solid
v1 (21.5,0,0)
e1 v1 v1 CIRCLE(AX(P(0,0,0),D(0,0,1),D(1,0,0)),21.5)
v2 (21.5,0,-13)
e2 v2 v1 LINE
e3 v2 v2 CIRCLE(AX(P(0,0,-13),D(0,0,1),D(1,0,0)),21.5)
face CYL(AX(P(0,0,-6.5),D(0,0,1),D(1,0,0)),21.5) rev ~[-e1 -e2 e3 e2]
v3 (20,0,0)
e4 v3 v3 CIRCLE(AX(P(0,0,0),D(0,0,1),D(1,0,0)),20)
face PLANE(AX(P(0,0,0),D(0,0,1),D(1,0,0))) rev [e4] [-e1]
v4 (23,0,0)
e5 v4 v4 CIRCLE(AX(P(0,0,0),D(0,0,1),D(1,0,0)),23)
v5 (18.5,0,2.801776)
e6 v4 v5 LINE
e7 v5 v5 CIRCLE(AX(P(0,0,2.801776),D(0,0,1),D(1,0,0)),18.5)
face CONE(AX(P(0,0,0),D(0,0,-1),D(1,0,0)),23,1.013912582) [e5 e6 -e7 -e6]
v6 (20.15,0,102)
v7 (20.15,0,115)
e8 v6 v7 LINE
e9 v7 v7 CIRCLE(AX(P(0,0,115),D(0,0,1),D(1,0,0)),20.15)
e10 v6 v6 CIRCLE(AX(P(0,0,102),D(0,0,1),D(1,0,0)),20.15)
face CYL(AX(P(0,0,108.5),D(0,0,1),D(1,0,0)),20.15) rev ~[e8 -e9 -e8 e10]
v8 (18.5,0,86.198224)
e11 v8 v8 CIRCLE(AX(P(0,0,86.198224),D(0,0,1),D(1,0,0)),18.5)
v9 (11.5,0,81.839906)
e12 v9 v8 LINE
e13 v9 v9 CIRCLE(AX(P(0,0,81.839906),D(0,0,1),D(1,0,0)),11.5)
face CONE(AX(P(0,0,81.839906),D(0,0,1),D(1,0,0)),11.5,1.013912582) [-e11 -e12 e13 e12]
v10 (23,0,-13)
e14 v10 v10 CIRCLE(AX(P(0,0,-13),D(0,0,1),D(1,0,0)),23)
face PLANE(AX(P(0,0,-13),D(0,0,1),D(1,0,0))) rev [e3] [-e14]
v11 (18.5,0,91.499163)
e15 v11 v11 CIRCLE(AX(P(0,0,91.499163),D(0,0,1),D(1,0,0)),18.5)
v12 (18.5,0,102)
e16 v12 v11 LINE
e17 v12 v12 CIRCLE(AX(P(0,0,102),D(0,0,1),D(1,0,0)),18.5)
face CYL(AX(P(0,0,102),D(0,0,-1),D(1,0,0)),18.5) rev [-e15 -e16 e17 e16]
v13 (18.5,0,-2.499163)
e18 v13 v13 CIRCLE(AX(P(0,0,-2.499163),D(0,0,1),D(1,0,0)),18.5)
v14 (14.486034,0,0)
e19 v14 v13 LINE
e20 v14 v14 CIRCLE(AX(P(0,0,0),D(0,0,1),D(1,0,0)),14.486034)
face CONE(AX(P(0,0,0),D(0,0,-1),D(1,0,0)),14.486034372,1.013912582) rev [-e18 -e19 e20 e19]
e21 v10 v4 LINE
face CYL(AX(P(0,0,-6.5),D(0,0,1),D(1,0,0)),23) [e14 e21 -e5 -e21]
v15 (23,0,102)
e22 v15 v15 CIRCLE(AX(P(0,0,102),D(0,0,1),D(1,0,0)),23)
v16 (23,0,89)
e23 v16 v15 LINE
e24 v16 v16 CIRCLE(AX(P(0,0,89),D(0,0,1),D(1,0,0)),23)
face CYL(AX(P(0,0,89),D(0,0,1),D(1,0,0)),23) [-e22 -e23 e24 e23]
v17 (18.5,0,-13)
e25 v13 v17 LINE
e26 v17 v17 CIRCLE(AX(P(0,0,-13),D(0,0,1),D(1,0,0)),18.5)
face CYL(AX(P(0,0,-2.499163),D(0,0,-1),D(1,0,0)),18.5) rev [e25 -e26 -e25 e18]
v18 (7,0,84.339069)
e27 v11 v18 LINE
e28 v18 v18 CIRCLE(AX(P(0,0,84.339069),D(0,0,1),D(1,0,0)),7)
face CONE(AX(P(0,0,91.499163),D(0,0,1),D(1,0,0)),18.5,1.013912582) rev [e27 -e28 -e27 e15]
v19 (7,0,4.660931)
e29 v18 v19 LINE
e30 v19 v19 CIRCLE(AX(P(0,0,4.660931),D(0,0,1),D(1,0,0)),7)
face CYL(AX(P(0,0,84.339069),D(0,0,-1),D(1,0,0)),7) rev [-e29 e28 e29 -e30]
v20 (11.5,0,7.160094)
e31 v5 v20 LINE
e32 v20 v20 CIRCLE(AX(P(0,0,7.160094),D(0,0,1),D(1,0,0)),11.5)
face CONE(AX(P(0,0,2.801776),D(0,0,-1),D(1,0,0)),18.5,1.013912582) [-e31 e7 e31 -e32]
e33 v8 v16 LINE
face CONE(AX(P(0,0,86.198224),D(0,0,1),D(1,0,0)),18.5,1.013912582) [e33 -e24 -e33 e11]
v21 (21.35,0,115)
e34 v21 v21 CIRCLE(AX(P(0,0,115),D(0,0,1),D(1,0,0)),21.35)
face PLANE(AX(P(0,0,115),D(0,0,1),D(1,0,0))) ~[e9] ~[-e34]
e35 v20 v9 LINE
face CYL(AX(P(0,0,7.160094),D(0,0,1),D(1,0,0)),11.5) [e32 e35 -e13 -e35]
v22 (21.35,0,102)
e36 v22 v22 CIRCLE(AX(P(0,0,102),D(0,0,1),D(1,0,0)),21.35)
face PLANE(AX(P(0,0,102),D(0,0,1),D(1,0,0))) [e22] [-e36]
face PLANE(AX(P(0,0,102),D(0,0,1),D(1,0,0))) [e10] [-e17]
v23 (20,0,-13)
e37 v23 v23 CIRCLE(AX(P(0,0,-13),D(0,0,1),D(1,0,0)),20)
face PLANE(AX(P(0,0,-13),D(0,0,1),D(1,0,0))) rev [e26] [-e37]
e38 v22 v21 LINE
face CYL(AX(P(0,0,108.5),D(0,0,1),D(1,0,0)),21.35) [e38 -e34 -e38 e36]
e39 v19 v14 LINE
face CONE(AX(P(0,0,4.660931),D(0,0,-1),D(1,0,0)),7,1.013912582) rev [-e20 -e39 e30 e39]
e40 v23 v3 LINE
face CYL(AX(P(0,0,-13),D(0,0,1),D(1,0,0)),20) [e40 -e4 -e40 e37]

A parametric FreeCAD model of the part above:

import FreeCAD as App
import Part
import Sketcher

V = App.Vector

doc = App.newDocument("Part")
params = doc.addObject("Spreadsheet::Sheet", "Params")
for row, (alias, value) in enumerate([
    ("sketch1_height", "13 mm"),
    ("sketch1_width", "1.5 mm"),
    ("sketch1_width2", "1.2 mm"),
    ("revolution_angle", "360 deg"),
], start=1):
    params.set(f"A{row}", alias)
    params.set(f"B{row}", "=" + value)
    params.setAlias(f"B{row}", alias)

body = doc.addObject("PartDesign::Body", "Body")

# Sketch on XZ plane
sketch1 = body.newObject("Sketcher::SketchObject", "Sketch")
sketch1.AttachmentSupport = (doc.getObject("XZ_Plane"), [""])
sketch1.MapMode = "FlatFace"
sketch1.addGeometry([
    Part.LineSegment(V(21.5, 0, 0), V(21.5, -13, 0)),  # 0
    Part.LineSegment(V(21.5, -13, 0), V(23, -13, 0)),  # 1
    Part.LineSegment(V(23, -13, 0), V(23, 0, 0)),  # 2
    Part.LineSegment(V(23, 0, 0), V(18.5, 2.801776, 0)),  # 3
    Part.LineSegment(V(18.5, 2.801776, 0), V(11.5, 7.160094, 0)),  # 4
    Part.LineSegment(V(11.5, 7.160094, 0), V(11.5, 81.839906, 0)),  # 5
    Part.LineSegment(V(11.5, 81.839906, 0), V(18.5, 86.198224, 0)),  # 6
    Part.LineSegment(V(18.5, 86.198224, 0), V(23, 89, 0)),  # 7
    Part.LineSegment(V(23, 89, 0), V(23, 102, 0)),  # 8
    Part.LineSegment(V(23, 102, 0), V(21.35, 102, 0)),  # 9
    Part.LineSegment(V(21.35, 102, 0), V(21.35, 115, 0)),  # 10
    Part.LineSegment(V(21.35, 115, 0), V(20.15, 115, 0)),  # 11
    Part.LineSegment(V(20.15, 115, 0), V(20.15, 102, 0)),  # 12
    Part.LineSegment(V(20.15, 102, 0), V(18.5, 102, 0)),  # 13
    Part.LineSegment(V(18.5, 102, 0), V(18.5, 91.499163, 0)),  # 14
    Part.LineSegment(V(18.5, 91.499163, 0), V(7, 84.339069, 0)),  # 15
    Part.LineSegment(V(7, 84.339069, 0), V(7, 4.660931, 0)),  # 16
    Part.LineSegment(V(7, 4.660931, 0), V(14.486034, 0, 0)),  # 17
    Part.LineSegment(V(14.486034, 0, 0), V(18.5, -2.499163, 0)),  # 18
    Part.LineSegment(V(18.5, -2.499163, 0), V(18.5, -13, 0)),  # 19
    Part.LineSegment(V(18.5, -13, 0), V(20, -13, 0)),  # 20
    Part.LineSegment(V(20, -13, 0), V(20, 0, 0)),  # 21
    Part.LineSegment(V(20, 0, 0), V(21.5, 0, 0)),  # 22
], False)
sketch1.addConstraint([
    Sketcher.Constraint("Coincident", 0, 2, 1, 1),
    Sketcher.Constraint("Coincident", 1, 2, 2, 1),
    Sketcher.Constraint("Coincident", 2, 2, 3, 1),
    Sketcher.Constraint("Coincident", 3, 2, 4, 1),
    Sketcher.Constraint("Coincident", 4, 2, 5, 1),
    Sketcher.Constraint("Coincident", 5, 2, 6, 1),
    Sketcher.Constraint("Coincident", 6, 2, 7, 1),
    Sketcher.Constraint("Coincident", 7, 2, 8, 1),
    Sketcher.Constraint("Coincident", 8, 2, 9, 1),
    Sketcher.Constraint("Coincident", 9, 2, 10, 1),
    Sketcher.Constraint("Coincident", 10, 2, 11, 1),
    Sketcher.Constraint("Coincident", 11, 2, 12, 1),
    Sketcher.Constraint("Coincident", 12, 2, 13, 1),
    Sketcher.Constraint("Coincident", 13, 2, 14, 1),
    Sketcher.Constraint("Coincident", 14, 2, 15, 1),
    Sketcher.Constraint("Coincident", 15, 2, 16, 1),
    Sketcher.Constraint("Coincident", 16, 2, 17, 1),
    Sketcher.Constraint("Coincident", 17, 2, 18, 1),
    Sketcher.Constraint("Coincident", 18, 2, 19, 1),
    Sketcher.Constraint("Coincident", 19, 2, 20, 1),
    Sketcher.Constraint("Coincident", 20, 2, 21, 1),
    Sketcher.Constraint("Coincident", 21, 2, 22, 1),
    Sketcher.Constraint("Coincident", 22, 2, 0, 1),
    Sketcher.Constraint("Vertical", 0),
    Sketcher.Constraint("Horizontal", 1),
    Sketcher.Constraint("Vertical", 2),
    Sketcher.Constraint("Vertical", 5),
    Sketcher.Constraint("Vertical", 8),
    Sketcher.Constraint("Horizontal", 9),
    Sketcher.Constraint("Vertical", 10),
    Sketcher.Constraint("Horizontal", 11),
    Sketcher.Constraint("Vertical", 12),
    Sketcher.Constraint("Horizontal", 13),
    Sketcher.Constraint("Vertical", 14),
    Sketcher.Constraint("Vertical", 16),
    Sketcher.Constraint("Vertical", 19),
    Sketcher.Constraint("Horizontal", 20),
    Sketcher.Constraint("Vertical", 21),
    Sketcher.Constraint("Horizontal", 22),
    Sketcher.Constraint("PointOnObject", 2, 2, -1),
    Sketcher.Constraint("PointOnObject", 17, 2, -1),
    Sketcher.Constraint("PointOnObject", 21, 2, -1),
    Sketcher.Constraint("Parallel", 3, 4),
    Sketcher.Constraint("Parallel", 6, 7),
    Sketcher.Constraint("Parallel", 7, 15),
    Sketcher.Constraint("Parallel", 4, 17),
    Sketcher.Constraint("Parallel", 17, 18),
    Sketcher.Constraint("Horizontal", 9, 2, 12, 2),
    Sketcher.Constraint("Horizontal", 1, 2, 19, 2),
    Sketcher.Constraint("Vertical", 3, 2, 6, 2),
    Sketcher.Constraint("Vertical", 2, 2, 7, 2),
    Sketcher.Constraint("Vertical", 6, 2, 13, 2),
    Sketcher.Constraint("Vertical", 14, 2, 18, 2),
    Sketcher.Constraint("Equal", 9, 13),
    Sketcher.Constraint("Equal", 1, 20),
    Sketcher.Constraint("Equal", 20, 22),
    Sketcher.Constraint("Equal", 2, 8),
    Sketcher.Constraint("Equal", 8, 10),
    Sketcher.Constraint("Equal", 14, 19),
    Sketcher.Constraint("Equal", 4, 6),
    Sketcher.Constraint("DistanceY", 0, 2, 0, 1, 13.0),
    Sketcher.Constraint("DistanceX", 1, 1, 1, 2, 1.5),
    Sketcher.Constraint("DistanceX", 11, 2, 11, 1, 1.2),
    Sketcher.Constraint("DistanceX", -1, 1, 1, 2, 23.0),
    Sketcher.Constraint("DistanceY", -1, 1, 7, 2, 89.0),
    Sketcher.Constraint("DistanceX", -1, 1, 15, 2, 7.0),
    Sketcher.Constraint("DistanceX", 4, 2, 3, 2, 7.0),
    Sketcher.Constraint("Distance", 3, 5.300938),
    Sketcher.Constraint("DistanceY", 14, 2, 14, 1, 10.500837),
])
sketch1.setExpression("Constraints[60]", "Params.sketch1_height")
sketch1.setExpression("Constraints[61]", "Params.sketch1_width")
sketch1.setExpression("Constraints[62]", "Params.sketch1_width2")
revolution = body.newObject("PartDesign::Revolution", "Revolution")
revolution.Profile = sketch1
revolution.ReferenceAxis = (sketch1, ["V_Axis"])
revolution.setExpression("Angle", "Params.revolution_angle")

doc.recompute()
